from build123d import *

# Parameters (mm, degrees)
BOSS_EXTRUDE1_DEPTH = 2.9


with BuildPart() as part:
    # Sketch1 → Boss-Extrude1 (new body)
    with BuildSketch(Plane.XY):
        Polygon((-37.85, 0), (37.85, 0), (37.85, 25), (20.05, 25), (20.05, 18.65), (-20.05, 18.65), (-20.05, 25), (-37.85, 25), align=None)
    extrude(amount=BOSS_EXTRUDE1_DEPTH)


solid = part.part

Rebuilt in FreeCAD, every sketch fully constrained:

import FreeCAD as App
import Part
import Sketcher
Q = App.Units.Quantity

doc = App.newDocument("Part")
body = doc.addObject("PartDesign::Body", "Body")

sketch1 = body.newObject("Sketcher::SketchObject", "Sketch")
sketch1.AttachmentSupport = (doc.getObject("XY_Plane"), [""])
sketch1.MapMode = "FlatFace"
sketch1.addGeometry(Part.LineSegment(App.Vector(-37.85, 0, 0), App.Vector(37.85, 0, 0)), False)
sketch1.addGeometry(Part.LineSegment(App.Vector(37.85, 0, 0), App.Vector(37.85, 25, 0)), False)
sketch1.addGeometry(Part.LineSegment(App.Vector(37.85, 25, 0), App.Vector(20.05, 25, 0)), False)
sketch1.addGeometry(Part.LineSegment(App.Vector(20.05, 25, 0), App.Vector(20.05, 18.65, 0)), False)
sketch1.addGeometry(Part.LineSegment(App.Vector(20.05, 18.65, 0), App.Vector(-20.05, 18.65, 0)), False)
sketch1.addGeometry(Part.LineSegment(App.Vector(-20.05, 18.65, 0), App.Vector(-20.05, 25, 0)), False)
sketch1.addGeometry(Part.LineSegment(App.Vector(-20.05, 25, 0), App.Vector(-37.85, 25, 0)), False)
sketch1.addGeometry(Part.LineSegment(App.Vector(-37.85, 25, 0), App.Vector(-37.85, 0, 0)), False)
sketch1.addConstraint(Sketcher.Constraint("Coincident", 0, 2, 1, 1))
sketch1.addConstraint(Sketcher.Constraint("Coincident", 1, 2, 2, 1))
sketch1.addConstraint(Sketcher.Constraint("Coincident", 2, 2, 3, 1))
sketch1.addConstraint(Sketcher.Constraint("Coincident", 3, 2, 4, 1))
sketch1.addConstraint(Sketcher.Constraint("Coincident", 4, 2, 5, 1))
sketch1.addConstraint(Sketcher.Constraint("Coincident", 5, 2, 6, 1))
sketch1.addConstraint(Sketcher.Constraint("Coincident", 6, 2, 7, 1))
sketch1.addConstraint(Sketcher.Constraint("Coincident", 7, 2, 0, 1))
sketch1.addConstraint(Sketcher.Constraint("Horizontal", 0))
sketch1.addConstraint(Sketcher.Constraint("Vertical", 1))
sketch1.addConstraint(Sketcher.Constraint("Horizontal", 2))
sketch1.addConstraint(Sketcher.Constraint("Vertical", 3))
sketch1.addConstraint(Sketcher.Constraint("Horizontal", 4))
sketch1.addConstraint(Sketcher.Constraint("Vertical", 5))
sketch1.addConstraint(Sketcher.Constraint("Horizontal", 6))
sketch1.addConstraint(Sketcher.Constraint("Vertical", 7))
sketch1.addConstraint(Sketcher.Constraint("Symmetric", 0, 2, 7, 2, -1, 1))
sketch1.addConstraint(Sketcher.Constraint("Symmetric", 2, 2, 5, 2, -2))
sketch1.addConstraint(Sketcher.Constraint("DistanceY", 1, 1, 1, 2, Q("25 mm")))
sketch1.addConstraint(Sketcher.Constraint("DistanceX", 0, 1, 0, 2, Q("75.7 mm")))
sketch1.addConstraint(Sketcher.Constraint("DistanceX", 2, 2, 2, 1, Q("17.8 mm")))
sketch1.addConstraint(Sketcher.Constraint("DistanceY", 3, 2, 3, 1, Q("6.35 mm")))
pad1 = body.newObject("PartDesign::Pad", "Pad")
pad1.Profile = sketch1
pad1.Length = 2.9

doc.recompute()
